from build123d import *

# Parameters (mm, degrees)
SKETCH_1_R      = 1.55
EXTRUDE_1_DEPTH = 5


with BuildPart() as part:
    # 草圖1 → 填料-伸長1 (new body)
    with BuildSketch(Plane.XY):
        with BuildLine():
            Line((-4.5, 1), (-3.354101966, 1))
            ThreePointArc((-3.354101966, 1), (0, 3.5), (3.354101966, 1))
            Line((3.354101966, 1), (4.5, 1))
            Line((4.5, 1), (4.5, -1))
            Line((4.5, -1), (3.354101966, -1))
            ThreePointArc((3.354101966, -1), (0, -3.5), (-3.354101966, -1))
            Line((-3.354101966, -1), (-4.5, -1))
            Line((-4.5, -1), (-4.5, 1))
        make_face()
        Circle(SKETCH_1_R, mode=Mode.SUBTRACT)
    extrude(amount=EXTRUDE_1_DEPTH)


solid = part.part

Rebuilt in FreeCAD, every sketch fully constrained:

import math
import FreeCAD as App
import Part
import Sketcher
from FreeCAD import Vector

doc = App.newDocument("Part")
body = doc.addObject("PartDesign::Body", "Body")

# Sketch on XY plane
sketch1 = body.newObject("Sketcher::SketchObject", "Sketch")
sketch1.AttachmentSupport = (doc.getObject("XY_Plane"), [""])
sketch1.MapMode = "FlatFace"
sketch1.addGeometry(Part.LineSegment(Vector(-3.4, 1, 0), Vector(-4.5, 1, 0)), False)
sketch1.addGeometry(Part.LineSegment(Vector(-4.5, 1, 0), Vector(-4.5, -1, 0)), False)
sketch1.addGeometry(Part.LineSegment(Vector(-4.5, -1, 0), Vector(-3.4, -1, 0)), False)
sketch1.addGeometry(Part.ArcOfCircle(Part.Circle(Vector(0, 0, 0), Vector(0, 0, 1), 3.5), math.radians(-163), math.radians(-17)), False)
sketch1.addGeometry(Part.LineSegment(Vector(3.4, -1, 0), Vector(4.5, -1, 0)), False)
sketch1.addGeometry(Part.LineSegment(Vector(4.5, -1, 0), Vector(4.5, 1, 0)), False)
sketch1.addGeometry(Part.LineSegment(Vector(4.5, 1, 0), Vector(3.4, 1, 0)), False)
sketch1.addGeometry(Part.ArcOfCircle(Part.Circle(Vector(0, 0, 0), Vector(0, 0, 1), 3.5), math.radians(17), math.radians(163)), False)
sketch1.addGeometry(Part.Circle(Vector(0, 0, 0), Vector(0, 0, 1), 1.6), False)
sketch1.addConstraint(Sketcher.Constraint("Coincident", 0, 2, 1, 1))
sketch1.addConstraint(Sketcher.Constraint("Coincident", 1, 2, 2, 1))
sketch1.addConstraint(Sketcher.Constraint("Coincident", 2, 2, 3, 1))
sketch1.addConstraint(Sketcher.Constraint("Coincident", 3, 2, 4, 1))
sketch1.addConstraint(Sketcher.Constraint("Coincident", 4, 2, 5, 1))
sketch1.addConstraint(Sketcher.Constraint("Coincident", 5, 2, 6, 1))
sketch1.addConstraint(Sketcher.Constraint("Coincident", 6, 2, 7, 1))
sketch1.addConstraint(Sketcher.Constraint("Coincident", 7, 2, 0, 1))
sketch1.addConstraint(Sketcher.Constraint("Horizontal", 0))
sketch1.addConstraint(Sketcher.Constraint("Vertical", 1))
sketch1.addConstraint(Sketcher.Constraint("Horizontal", 2))
sketch1.addConstraint(Sketcher.Constraint("Horizontal", 4))
sketch1.addConstraint(Sketcher.Constraint("Vertical", 5))
sketch1.addConstraint(Sketcher.Constraint("Horizontal", 6))
sketch1.addConstraint(Sketcher.Constraint("Coincident", 3, 3, -1, 1))
sketch1.addConstraint(Sketcher.Constraint("Coincident", 7, 3, -1, 1))
sketch1.addConstraint(Sketcher.Constraint("Coincident", 8, 3, -1, 1))
sketch1.addConstraint(Sketcher.Constraint("Equal", 3, 7))
sketch1.addConstraint(Sketcher.Constraint("Symmetric", 0, 2, 4, 2, -1, 1))
sketch1.addConstraint(Sketcher.Constraint("Horizontal", 2, 2, 3, 2))
sketch1.addConstraint(Sketcher.Constraint("Horizontal", 0, 2, 5, 2))
sketch1.addConstraint(Sketcher.Constraint("Diameter", 8, 3.1))
sketch1.addConstraint(Sketcher.Constraint("Radius", 3, 3.5))
sketch1.addConstraint(Sketcher.Constraint("DistanceY", 1, 2, 1, 1, 2.0))
sketch1.addConstraint(Sketcher.Constraint("DistanceX", 0, 2, -1, 1, 4.5))
pad1 = body.newObject("PartDesign::Pad", "Pad")
pad1.Profile = sketch1
pad1.Length = 5

doc.recompute()
